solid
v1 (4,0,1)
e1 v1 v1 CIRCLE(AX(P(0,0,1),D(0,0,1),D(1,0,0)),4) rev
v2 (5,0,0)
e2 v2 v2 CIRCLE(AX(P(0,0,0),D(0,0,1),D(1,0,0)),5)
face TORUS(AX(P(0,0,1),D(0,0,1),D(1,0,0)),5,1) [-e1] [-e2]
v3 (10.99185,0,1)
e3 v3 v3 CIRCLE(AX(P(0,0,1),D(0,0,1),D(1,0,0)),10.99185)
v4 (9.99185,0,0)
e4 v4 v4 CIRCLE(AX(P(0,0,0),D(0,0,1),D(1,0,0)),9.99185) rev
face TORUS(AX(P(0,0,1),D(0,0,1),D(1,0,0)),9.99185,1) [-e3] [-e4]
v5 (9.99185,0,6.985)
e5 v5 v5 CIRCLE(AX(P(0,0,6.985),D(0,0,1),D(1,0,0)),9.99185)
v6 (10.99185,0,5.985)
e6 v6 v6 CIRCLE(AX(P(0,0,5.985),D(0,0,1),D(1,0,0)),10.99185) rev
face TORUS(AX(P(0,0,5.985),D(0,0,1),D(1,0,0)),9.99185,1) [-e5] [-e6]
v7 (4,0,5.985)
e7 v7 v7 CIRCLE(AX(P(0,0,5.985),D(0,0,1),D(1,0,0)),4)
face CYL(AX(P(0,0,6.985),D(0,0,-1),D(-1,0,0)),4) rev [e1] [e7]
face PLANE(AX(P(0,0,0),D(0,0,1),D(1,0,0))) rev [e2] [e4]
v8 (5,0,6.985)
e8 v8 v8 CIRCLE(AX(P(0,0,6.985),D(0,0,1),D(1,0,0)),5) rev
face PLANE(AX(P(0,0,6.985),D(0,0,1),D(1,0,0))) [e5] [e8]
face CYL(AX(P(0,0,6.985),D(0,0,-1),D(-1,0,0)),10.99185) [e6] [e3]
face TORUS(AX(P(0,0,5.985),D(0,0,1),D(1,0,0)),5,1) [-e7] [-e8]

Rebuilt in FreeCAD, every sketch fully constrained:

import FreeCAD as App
import Part
import Sketcher
from FreeCAD import Vector


def edges_at(feature, points):
    """Names of the edges that pass closest to the given points."""
    edges = feature.Shape.Edges
    near = lambda p: min(range(len(edges)), key=lambda i: edges[i].distToShape(Part.Vertex(*p))[0])
    return sorted({f"Edge{near(p) + 1}" for p in points})

doc = App.newDocument("Part")
body = doc.addObject("PartDesign::Body", "Body")

# Sketch on XY plane
sketch1 = doc.addObject("Sketcher::SketchObject", "Sketch")
body.addObject(sketch1)
sketch1.AttachmentSupport = (doc.XY_Plane, [""])
sketch1.MapMode = "FlatFace"
sketch1.addGeometry(Part.Circle(Vector(0, 0, 0), Vector(0, 0, 1), 11), False)
sketch1.addGeometry(Part.Circle(Vector(0, 0, 0), Vector(0, 0, 1), 4), False)
sketch1.addConstraint(Sketcher.Constraint("Coincident", 0, 3, -1, 1))
sketch1.addConstraint(Sketcher.Constraint("Coincident", 1, 3, -1, 1))
sketch1.addConstraint(Sketcher.Constraint("Diameter", 1, 8.0))
sketch1.addConstraint(Sketcher.Constraint("Diameter", 0, 21.9837))
pad1 = doc.addObject("PartDesign::Pad", "Pad")
body.addObject(pad1)
pad1.Profile = sketch1
pad1.Length = 6.985
doc.recompute()

fillet = doc.addObject("PartDesign::Fillet", "Fillet")
body.addObject(fillet)
fillet.Base = (pad1, edges_at(pad1, [
    (-10.992, 0, 0),
    (-10.992, 0, 6.985),
    (-4, 0, 0),
    (-4, 0, 6.985),
]))
fillet.Radius = 1

doc.recompute()
